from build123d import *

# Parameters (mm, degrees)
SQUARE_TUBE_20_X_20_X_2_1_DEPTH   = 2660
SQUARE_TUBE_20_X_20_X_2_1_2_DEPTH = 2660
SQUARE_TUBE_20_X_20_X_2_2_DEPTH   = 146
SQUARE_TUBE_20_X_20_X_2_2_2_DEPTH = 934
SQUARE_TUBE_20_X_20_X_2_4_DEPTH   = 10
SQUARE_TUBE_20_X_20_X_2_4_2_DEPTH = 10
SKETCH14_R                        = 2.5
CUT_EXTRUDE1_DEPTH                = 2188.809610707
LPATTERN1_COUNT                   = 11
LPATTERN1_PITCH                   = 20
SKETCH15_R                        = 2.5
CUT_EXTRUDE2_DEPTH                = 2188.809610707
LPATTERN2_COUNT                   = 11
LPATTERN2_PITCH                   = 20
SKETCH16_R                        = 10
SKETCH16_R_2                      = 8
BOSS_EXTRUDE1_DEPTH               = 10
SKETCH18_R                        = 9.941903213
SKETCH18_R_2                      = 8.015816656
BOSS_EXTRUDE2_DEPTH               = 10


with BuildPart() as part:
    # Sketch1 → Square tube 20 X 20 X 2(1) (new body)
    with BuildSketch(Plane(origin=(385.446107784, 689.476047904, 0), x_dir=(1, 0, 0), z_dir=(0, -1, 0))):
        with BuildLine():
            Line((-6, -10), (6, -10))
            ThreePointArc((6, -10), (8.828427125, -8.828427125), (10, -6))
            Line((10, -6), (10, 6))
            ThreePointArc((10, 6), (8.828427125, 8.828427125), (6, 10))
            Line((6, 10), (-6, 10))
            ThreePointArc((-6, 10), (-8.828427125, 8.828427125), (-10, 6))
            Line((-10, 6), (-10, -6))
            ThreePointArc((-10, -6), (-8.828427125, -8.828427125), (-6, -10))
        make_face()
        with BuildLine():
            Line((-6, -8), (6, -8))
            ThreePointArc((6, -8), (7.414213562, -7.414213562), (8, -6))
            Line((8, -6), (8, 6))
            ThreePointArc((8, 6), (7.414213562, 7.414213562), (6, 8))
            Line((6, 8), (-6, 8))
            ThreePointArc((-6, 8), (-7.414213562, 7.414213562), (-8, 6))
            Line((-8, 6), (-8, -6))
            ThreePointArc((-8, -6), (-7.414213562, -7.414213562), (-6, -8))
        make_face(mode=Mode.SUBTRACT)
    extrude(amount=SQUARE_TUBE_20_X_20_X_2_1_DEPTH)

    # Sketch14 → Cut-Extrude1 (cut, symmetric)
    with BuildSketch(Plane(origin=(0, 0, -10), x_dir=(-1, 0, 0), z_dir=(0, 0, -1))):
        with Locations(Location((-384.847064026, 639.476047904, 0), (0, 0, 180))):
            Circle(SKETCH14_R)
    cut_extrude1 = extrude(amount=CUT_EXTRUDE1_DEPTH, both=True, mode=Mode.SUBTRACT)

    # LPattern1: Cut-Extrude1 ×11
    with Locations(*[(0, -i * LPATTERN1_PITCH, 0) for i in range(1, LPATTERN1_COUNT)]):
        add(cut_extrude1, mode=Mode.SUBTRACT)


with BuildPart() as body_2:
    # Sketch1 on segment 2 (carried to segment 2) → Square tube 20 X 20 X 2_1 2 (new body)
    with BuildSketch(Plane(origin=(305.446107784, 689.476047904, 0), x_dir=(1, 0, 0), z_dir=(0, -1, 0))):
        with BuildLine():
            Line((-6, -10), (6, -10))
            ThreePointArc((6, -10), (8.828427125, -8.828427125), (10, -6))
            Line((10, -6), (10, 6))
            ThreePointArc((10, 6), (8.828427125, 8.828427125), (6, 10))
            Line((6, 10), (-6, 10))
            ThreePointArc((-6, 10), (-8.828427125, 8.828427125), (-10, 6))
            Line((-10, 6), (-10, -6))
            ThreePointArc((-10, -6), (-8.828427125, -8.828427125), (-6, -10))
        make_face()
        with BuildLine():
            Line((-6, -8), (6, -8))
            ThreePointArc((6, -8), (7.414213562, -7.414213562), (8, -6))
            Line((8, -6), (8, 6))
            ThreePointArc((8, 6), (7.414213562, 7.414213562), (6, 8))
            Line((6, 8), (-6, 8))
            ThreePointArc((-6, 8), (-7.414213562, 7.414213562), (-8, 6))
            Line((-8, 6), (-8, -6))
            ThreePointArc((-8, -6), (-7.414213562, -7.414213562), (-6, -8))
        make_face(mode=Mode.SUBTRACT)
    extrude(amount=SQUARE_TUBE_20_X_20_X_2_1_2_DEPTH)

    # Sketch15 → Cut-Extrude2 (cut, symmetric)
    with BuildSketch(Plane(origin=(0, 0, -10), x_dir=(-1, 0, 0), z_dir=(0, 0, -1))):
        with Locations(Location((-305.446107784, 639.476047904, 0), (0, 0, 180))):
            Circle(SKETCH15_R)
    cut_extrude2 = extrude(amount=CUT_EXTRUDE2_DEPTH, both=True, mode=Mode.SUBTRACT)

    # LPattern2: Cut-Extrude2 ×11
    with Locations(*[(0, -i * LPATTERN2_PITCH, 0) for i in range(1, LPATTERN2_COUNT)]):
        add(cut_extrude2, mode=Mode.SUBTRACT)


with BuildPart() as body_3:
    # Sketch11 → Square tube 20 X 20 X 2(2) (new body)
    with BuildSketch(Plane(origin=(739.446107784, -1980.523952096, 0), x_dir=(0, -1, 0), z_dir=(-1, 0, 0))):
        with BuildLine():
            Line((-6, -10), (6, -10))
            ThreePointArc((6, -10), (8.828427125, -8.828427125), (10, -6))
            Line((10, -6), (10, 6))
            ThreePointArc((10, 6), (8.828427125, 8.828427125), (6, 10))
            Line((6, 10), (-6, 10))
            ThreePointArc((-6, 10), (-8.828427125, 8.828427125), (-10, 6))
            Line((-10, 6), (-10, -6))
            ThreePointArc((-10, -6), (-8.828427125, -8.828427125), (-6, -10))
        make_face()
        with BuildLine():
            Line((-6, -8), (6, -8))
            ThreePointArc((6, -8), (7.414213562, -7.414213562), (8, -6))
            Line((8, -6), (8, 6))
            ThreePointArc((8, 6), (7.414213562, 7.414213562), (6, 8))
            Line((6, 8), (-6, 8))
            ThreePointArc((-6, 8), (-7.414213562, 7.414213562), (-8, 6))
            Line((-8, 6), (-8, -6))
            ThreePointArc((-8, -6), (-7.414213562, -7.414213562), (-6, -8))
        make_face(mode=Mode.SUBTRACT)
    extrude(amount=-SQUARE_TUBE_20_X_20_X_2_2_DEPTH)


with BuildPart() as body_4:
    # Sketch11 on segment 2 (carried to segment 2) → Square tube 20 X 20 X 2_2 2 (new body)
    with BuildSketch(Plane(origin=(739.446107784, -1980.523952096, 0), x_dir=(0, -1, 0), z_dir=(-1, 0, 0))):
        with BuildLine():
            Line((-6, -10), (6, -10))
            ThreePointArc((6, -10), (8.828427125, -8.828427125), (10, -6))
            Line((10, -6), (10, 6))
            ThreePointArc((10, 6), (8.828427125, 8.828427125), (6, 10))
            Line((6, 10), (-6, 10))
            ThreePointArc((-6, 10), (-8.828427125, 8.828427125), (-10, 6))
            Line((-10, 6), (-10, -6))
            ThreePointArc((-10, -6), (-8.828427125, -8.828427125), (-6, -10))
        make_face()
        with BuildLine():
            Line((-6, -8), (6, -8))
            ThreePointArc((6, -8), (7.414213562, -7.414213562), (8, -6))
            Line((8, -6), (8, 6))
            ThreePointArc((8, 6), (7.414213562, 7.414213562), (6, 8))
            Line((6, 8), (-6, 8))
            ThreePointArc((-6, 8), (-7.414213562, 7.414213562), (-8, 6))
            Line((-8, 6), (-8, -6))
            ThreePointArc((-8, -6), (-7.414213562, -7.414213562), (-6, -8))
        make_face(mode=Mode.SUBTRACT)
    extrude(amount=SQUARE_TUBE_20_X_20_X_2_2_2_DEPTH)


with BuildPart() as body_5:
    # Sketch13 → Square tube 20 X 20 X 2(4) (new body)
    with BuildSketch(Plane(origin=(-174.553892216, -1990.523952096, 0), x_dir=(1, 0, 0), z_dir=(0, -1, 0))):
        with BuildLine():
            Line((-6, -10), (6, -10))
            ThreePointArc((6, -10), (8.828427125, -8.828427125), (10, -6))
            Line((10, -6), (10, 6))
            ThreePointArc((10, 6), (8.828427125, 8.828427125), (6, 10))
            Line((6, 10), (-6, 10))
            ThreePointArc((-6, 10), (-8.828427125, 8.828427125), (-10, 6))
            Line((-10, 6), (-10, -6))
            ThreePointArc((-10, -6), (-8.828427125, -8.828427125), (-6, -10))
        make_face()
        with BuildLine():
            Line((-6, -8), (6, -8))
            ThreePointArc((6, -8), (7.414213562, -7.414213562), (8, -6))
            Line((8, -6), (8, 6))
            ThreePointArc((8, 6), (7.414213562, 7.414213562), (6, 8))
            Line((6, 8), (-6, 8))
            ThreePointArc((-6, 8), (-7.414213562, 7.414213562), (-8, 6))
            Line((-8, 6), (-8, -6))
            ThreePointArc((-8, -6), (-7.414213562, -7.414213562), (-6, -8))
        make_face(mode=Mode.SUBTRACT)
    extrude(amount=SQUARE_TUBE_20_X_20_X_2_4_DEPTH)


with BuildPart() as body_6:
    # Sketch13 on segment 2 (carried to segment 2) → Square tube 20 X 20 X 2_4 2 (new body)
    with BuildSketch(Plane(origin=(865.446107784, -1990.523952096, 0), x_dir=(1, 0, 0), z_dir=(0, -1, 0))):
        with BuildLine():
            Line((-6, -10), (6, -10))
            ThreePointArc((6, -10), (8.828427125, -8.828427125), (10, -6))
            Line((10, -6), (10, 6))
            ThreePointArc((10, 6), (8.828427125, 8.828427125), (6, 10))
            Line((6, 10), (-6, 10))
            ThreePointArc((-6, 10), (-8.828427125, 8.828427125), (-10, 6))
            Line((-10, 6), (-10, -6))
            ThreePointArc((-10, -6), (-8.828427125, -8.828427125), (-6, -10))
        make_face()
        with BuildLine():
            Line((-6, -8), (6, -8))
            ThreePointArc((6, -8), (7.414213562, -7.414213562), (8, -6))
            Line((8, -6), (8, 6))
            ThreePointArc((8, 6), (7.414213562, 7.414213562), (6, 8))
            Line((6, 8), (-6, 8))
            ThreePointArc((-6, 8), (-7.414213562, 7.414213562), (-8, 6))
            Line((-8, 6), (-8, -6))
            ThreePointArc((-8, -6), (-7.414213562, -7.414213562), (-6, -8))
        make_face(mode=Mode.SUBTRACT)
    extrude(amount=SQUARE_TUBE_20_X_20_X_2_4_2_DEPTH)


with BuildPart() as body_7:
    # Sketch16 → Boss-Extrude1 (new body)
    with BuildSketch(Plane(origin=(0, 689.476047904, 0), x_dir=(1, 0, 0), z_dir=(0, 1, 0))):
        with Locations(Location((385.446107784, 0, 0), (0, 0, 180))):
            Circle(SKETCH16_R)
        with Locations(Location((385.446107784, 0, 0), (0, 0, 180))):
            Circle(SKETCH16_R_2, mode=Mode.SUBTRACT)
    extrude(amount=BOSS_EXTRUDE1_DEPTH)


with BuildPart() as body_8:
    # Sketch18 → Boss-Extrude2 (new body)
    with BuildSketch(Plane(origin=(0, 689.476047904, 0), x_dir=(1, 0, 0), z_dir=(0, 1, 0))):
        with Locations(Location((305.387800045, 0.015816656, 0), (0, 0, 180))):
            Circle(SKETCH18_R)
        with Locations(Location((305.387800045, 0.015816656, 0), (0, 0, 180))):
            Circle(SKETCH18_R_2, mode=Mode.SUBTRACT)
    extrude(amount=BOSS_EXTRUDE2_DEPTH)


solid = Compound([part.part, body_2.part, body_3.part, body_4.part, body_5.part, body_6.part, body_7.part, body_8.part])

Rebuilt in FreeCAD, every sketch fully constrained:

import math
import FreeCAD as App
import Part
import Sketcher
from FreeCAD import Vector

doc = App.newDocument("Part")
params = doc.addObject("Spreadsheet::Sheet", "Params")
for row, (alias, value) in enumerate([
    ("sketch1_radius", "4 mm"),
    ("sketch1_radius2", "2 mm"),
    ("sketch1_width", "12 mm"),
    ("pad1_length", "2660 mm"),
    ("sketch2_diameter", "5 mm"),
    ("pocket1_length", "4377.619221 mm"),
    ("linearpattern_pitch", "20 mm"),
    ("sketch3_radius", "4 mm"),
    ("sketch3_radius2", "2 mm"),
    ("sketch3_width", "12 mm"),
    ("pad2_length", "2660 mm"),
    ("sketch4_diameter", "5 mm"),
    ("pocket2_length", "4377.619221 mm"),
    ("linearpattern2_pitch", "20 mm"),
    ("sketch5_radius", "4 mm"),
    ("sketch5_radius2", "2 mm"),
    ("sketch5_width", "12 mm"),
    ("pad3_length", "146 mm"),
    ("sketch6_radius", "4 mm"),
    ("sketch6_radius2", "2 mm"),
    ("sketch6_width", "12 mm"),
    ("pad4_length", "934 mm"),
    ("sketch7_radius", "4 mm"),
    ("sketch7_radius2", "2 mm"),
    ("sketch7_width", "12 mm"),
    ("pad5_length", "10 mm"),
    ("sketch8_radius", "4 mm"),
    ("sketch8_radius2", "2 mm"),
    ("sketch8_width", "12 mm"),
    ("pad6_length", "10 mm"),
    ("sketch9_diameter", "20 mm"),
    ("sketch9_diameter2", "16 mm"),
    ("pad7_length", "10 mm"),
    ("pad8_length", "10 mm"),
], start=1):
    params.set(f"A{row}", alias)
    params.set(f"B{row}", "=" + value)
    params.setAlias(f"B{row}", alias)

body = doc.addObject("PartDesign::Body", "Body")

# Sketch on XZ plane
sketch1 = doc.addObject("Sketcher::SketchObject", "Sketch")
body.addObject(sketch1)
sketch1.AttachmentSupport = (doc.XZ_Plane, [""])
sketch1.MapMode = "FlatFace"
sketch1.AttachmentOffset = App.Placement(Vector(0, 0, -689.476048), App.Rotation())
sketch1.addGeometry(Part.LineSegment(Vector(379.4, -10, 0), Vector(391.4, -10, 0)), False)
sketch1.addGeometry(Part.ArcOfCircle(Part.Circle(Vector(391.4, -6, 0), Vector(0, 0, 1), 4), math.radians(-90), math.radians(0)), False)
sketch1.addGeometry(Part.LineSegment(Vector(395.4, -6, 0), Vector(395.4, 6, 0)), False)
sketch1.addGeometry(Part.ArcOfCircle(Part.Circle(Vector(391.4, 6, 0), Vector(0, 0, 1), 4), math.radians(0), math.radians(90)), False)
sketch1.addGeometry(Part.LineSegment(Vector(391.4, 10, 0), Vector(379.4, 10, 0)), False)
sketch1.addGeometry(Part.ArcOfCircle(Part.Circle(Vector(379.4, 6, 0), Vector(0, 0, 1), 4), math.radians(90), math.radians(180)), False)
sketch1.addGeometry(Part.LineSegment(Vector(375.4, 6, 0), Vector(375.4, -6, 0)), False)
sketch1.addGeometry(Part.ArcOfCircle(Part.Circle(Vector(379.4, -6, 0), Vector(0, 0, 1), 4), math.radians(180), math.radians(270)), False)
sketch1.addGeometry(Part.LineSegment(Vector(391.4, -8, 0), Vector(379.4, -8, 0)), False)
sketch1.addGeometry(Part.ArcOfCircle(Part.Circle(Vector(379.4, -6, 0), Vector(0, 0, 1), 2), math.radians(-180), math.radians(-90)), False)
sketch1.addGeometry(Part.LineSegment(Vector(377.4, -6, 0), Vector(377.4, 6, 0)), False)
sketch1.addGeometry(Part.ArcOfCircle(Part.Circle(Vector(379.4, 6, 0), Vector(0, 0, 1), 2), math.radians(90), math.radians(180)), False)
sketch1.addGeometry(Part.LineSegment(Vector(379.4, 8, 0), Vector(391.4, 8, 0)), False)
sketch1.addGeometry(Part.ArcOfCircle(Part.Circle(Vector(391.4, 6, 0), Vector(0, 0, 1), 2), math.radians(0), math.radians(90)), False)
sketch1.addGeometry(Part.LineSegment(Vector(393.4, 6, 0), Vector(393.4, -6, 0)), False)
sketch1.addGeometry(Part.ArcOfCircle(Part.Circle(Vector(391.4, -6, 0), Vector(0, 0, 1), 2), math.radians(-90), math.radians(0)), False)
sketch1.addConstraint(Sketcher.Constraint("Tangent", 0, 2, 1, 1))
sketch1.addConstraint(Sketcher.Constraint("Tangent", 1, 2, 2, 1))
sketch1.addConstraint(Sketcher.Constraint("Tangent", 2, 2, 3, 1))
sketch1.addConstraint(Sketcher.Constraint("Tangent", 3, 2, 4, 1))
sketch1.addConstraint(Sketcher.Constraint("Tangent", 4, 2, 5, 1))
sketch1.addConstraint(Sketcher.Constraint("Tangent", 5, 2, 6, 1))
sketch1.addConstraint(Sketcher.Constraint("Tangent", 6, 2, 7, 1))
sketch1.addConstraint(Sketcher.Constraint("Tangent", 7, 2, 0, 1))
sketch1.addConstraint(Sketcher.Constraint("Tangent", 8, 2, 9, 2))
sketch1.addConstraint(Sketcher.Constraint("Tangent", 9, 1, 10, 1))
sketch1.addConstraint(Sketcher.Constraint("Tangent", 10, 2, 11, 2))
sketch1.addConstraint(Sketcher.Constraint("Tangent", 11, 1, 12, 1))
sketch1.addConstraint(Sketcher.Constraint("Tangent", 12, 2, 13, 2))
sketch1.addConstraint(Sketcher.Constraint("Tangent", 13, 1, 14, 1))
sketch1.addConstraint(Sketcher.Constraint("Tangent", 14, 2, 15, 2))
sketch1.addConstraint(Sketcher.Constraint("Tangent", 15, 1, 8, 1))
sketch1.addConstraint(Sketcher.Constraint("Horizontal", 0))
sketch1.addConstraint(Sketcher.Constraint("Vertical", 2))
sketch1.addConstraint(Sketcher.Constraint("Horizontal", 4))
sketch1.addConstraint(Sketcher.Constraint("Vertical", 6))
sketch1.addConstraint(Sketcher.Constraint("Horizontal", 8))
sketch1.addConstraint(Sketcher.Constraint("Vertical", 10))
sketch1.addConstraint(Sketcher.Constraint("Horizontal", 12))
sketch1.addConstraint(Sketcher.Constraint("Vertical", 14))
sketch1.addConstraint(Sketcher.Constraint("Coincident", 9, 3, 7, 3))
sketch1.addConstraint(Sketcher.Constraint("Coincident", 11, 3, 5, 3))
sketch1.addConstraint(Sketcher.Constraint("Coincident", 13, 3, 3, 3))
sketch1.addConstraint(Sketcher.Constraint("Equal", 1, 3))
sketch1.addConstraint(Sketcher.Constraint("Equal", 3, 5))
sketch1.addConstraint(Sketcher.Constraint("Equal", 5, 7))
sketch1.addConstraint(Sketcher.Constraint("Equal", 13, 15))
sketch1.addConstraint(Sketcher.Constraint("Equal", 12, 2))
sketch1.addConstraint(Sketcher.Constraint("Radius", 1, 4.0))
sketch1.addConstraint(Sketcher.Constraint("Radius", 9, 2.0))
sketch1.addConstraint(Sketcher.Constraint("DistanceX", 0, 1, 0, 2, 12.0))
sketch1.addConstraint(Sketcher.Constraint("DistanceY", 1, 3, -1, 1, 6.0))
sketch1.addConstraint(Sketcher.Constraint("DistanceX", -1, 1, 1, 3, 391.446108))
sketch1.setExpression("Constraints[32]", "Params.sketch1_radius")
sketch1.setExpression("Constraints[33]", "Params.sketch1_radius2")
sketch1.setExpression("Constraints[34]", "Params.sketch1_width")
pad1 = doc.addObject("PartDesign::Pad", "Pad")
body.addObject(pad1)
pad1.Profile = sketch1
pad1.setExpression("Length", "Params.pad1_length")

# Sketch on XY plane
sketch2 = doc.addObject("Sketcher::SketchObject", "Sketch001")
body.addObject(sketch2)
sketch2.AttachmentSupport = (doc.XY_Plane, [""])
sketch2.MapMode = "FlatFace"
sketch2.AttachmentOffset = App.Placement(Vector(0, 0, -10), App.Rotation())
sketch2.addGeometry(Part.Circle(Vector(384.8, 639.5, 0), Vector(0, 0, 1), 2.5), False)
sketch2.addConstraint(Sketcher.Constraint("Diameter", 0, 5.0))
sketch2.addConstraint(Sketcher.Constraint("DistanceX", -1, 1, 0, 3, 384.847064))
sketch2.addConstraint(Sketcher.Constraint("DistanceY", -1, 1, 0, 3, 639.476048))
sketch2.setExpression("Constraints[0]", "Params.sketch2_diameter")
pocket1 = doc.addObject("PartDesign::Pocket", "Pocket")
body.addObject(pocket1)
pocket1.Profile = sketch2
pocket1.setExpression("Length", "Params.pocket1_length")
pocket1.Midplane = True
doc.recompute()

linearpattern = doc.addObject("PartDesign::LinearPattern", "LinearPattern")
body.addObject(linearpattern)
linearpattern.Originals = [pocket1]
linearpattern.Direction = (doc.Y_Axis, [""])
linearpattern.Mode = "offset"
linearpattern.setExpression("Offset", "Params.linearpattern_pitch")
linearpattern.Occurrences = 11
linearpattern.Reversed = True
body.Tip = linearpattern
body2 = doc.addObject("PartDesign::Body", "Body001")

# Sketch on XZ plane
sketch3 = doc.addObject("Sketcher::SketchObject", "Sketch002")
body2.addObject(sketch3)
sketch3.AttachmentSupport = (doc.getObject("XZ_Plane001"), [""])
sketch3.MapMode = "FlatFace"
sketch3.AttachmentOffset = App.Placement(Vector(0, 0, -689.476048), App.Rotation())
sketch3.addGeometry(Part.LineSegment(Vector(299.4, -10, 0), Vector(311.4, -10, 0)), False)
sketch3.addGeometry(Part.ArcOfCircle(Part.Circle(Vector(311.4, -6, 0), Vector(0, 0, 1), 4), math.radians(-90), math.radians(0)), False)
sketch3.addGeometry(Part.LineSegment(Vector(315.4, -6, 0), Vector(315.4, 6, 0)), False)
sketch3.addGeometry(Part.ArcOfCircle(Part.Circle(Vector(311.4, 6, 0), Vector(0, 0, 1), 4), math.radians(0), math.radians(90)), False)
sketch3.addGeometry(Part.LineSegment(Vector(311.4, 10, 0), Vector(299.4, 10, 0)), False)
sketch3.addGeometry(Part.ArcOfCircle(Part.Circle(Vector(299.4, 6, 0), Vector(0, 0, 1), 4), math.radians(90), math.radians(180)), False)
sketch3.addGeometry(Part.LineSegment(Vector(295.4, 6, 0), Vector(295.4, -6, 0)), False)
sketch3.addGeometry(Part.ArcOfCircle(Part.Circle(Vector(299.4, -6, 0), Vector(0, 0, 1), 4), math.radians(180), math.radians(270)), False)
sketch3.addGeometry(Part.LineSegment(Vector(311.4, -8, 0), Vector(299.4, -8, 0)), False)
sketch3.addGeometry(Part.ArcOfCircle(Part.Circle(Vector(299.4, -6, 0), Vector(0, 0, 1), 2), math.radians(-180), math.radians(-90)), False)
sketch3.addGeometry(Part.LineSegment(Vector(297.4, -6, 0), Vector(297.4, 6, 0)), False)
sketch3.addGeometry(Part.ArcOfCircle(Part.Circle(Vector(299.4, 6, 0), Vector(0, 0, 1), 2), math.radians(90), math.radians(180)), False)
sketch3.addGeometry(Part.LineSegment(Vector(299.4, 8, 0), Vector(311.4, 8, 0)), False)
sketch3.addGeometry(Part.ArcOfCircle(Part.Circle(Vector(311.4, 6, 0), Vector(0, 0, 1), 2), math.radians(0), math.radians(90)), False)
sketch3.addGeometry(Part.LineSegment(Vector(313.4, 6, 0), Vector(313.4, -6, 0)), False)
sketch3.addGeometry(Part.ArcOfCircle(Part.Circle(Vector(311.4, -6, 0), Vector(0, 0, 1), 2), math.radians(-90), math.radians(0)), False)
sketch3.addConstraint(Sketcher.Constraint("Tangent", 0, 2, 1, 1))
sketch3.addConstraint(Sketcher.Constraint("Tangent", 1, 2, 2, 1))
sketch3.addConstraint(Sketcher.Constraint("Tangent", 2, 2, 3, 1))
sketch3.addConstraint(Sketcher.Constraint("Tangent", 3, 2, 4, 1))
sketch3.addConstraint(Sketcher.Constraint("Tangent", 4, 2, 5, 1))
sketch3.addConstraint(Sketcher.Constraint("Tangent", 5, 2, 6, 1))
sketch3.addConstraint(Sketcher.Constraint("Tangent", 6, 2, 7, 1))
sketch3.addConstraint(Sketcher.Constraint("Tangent", 7, 2, 0, 1))
sketch3.addConstraint(Sketcher.Constraint("Tangent", 8, 2, 9, 2))
sketch3.addConstraint(Sketcher.Constraint("Tangent", 9, 1, 10, 1))
sketch3.addConstraint(Sketcher.Constraint("Tangent", 10, 2, 11, 2))
sketch3.addConstraint(Sketcher.Constraint("Tangent", 11, 1, 12, 1))
sketch3.addConstraint(Sketcher.Constraint("Tangent", 12, 2, 13, 2))
sketch3.addConstraint(Sketcher.Constraint("Tangent", 13, 1, 14, 1))
sketch3.addConstraint(Sketcher.Constraint("Tangent", 14, 2, 15, 2))
sketch3.addConstraint(Sketcher.Constraint("Tangent", 15, 1, 8, 1))
sketch3.addConstraint(Sketcher.Constraint("Horizontal", 0))
sketch3.addConstraint(Sketcher.Constraint("Vertical", 2))
sketch3.addConstraint(Sketcher.Constraint("Horizontal", 4))
sketch3.addConstraint(Sketcher.Constraint("Vertical", 6))
sketch3.addConstraint(Sketcher.Constraint("Horizontal", 8))
sketch3.addConstraint(Sketcher.Constraint("Vertical", 10))
sketch3.addConstraint(Sketcher.Constraint("Horizontal", 12))
sketch3.addConstraint(Sketcher.Constraint("Vertical", 14))
sketch3.addConstraint(Sketcher.Constraint("Coincident", 9, 3, 7, 3))
sketch3.addConstraint(Sketcher.Constraint("Coincident", 11, 3, 5, 3))
sketch3.addConstraint(Sketcher.Constraint("Coincident", 13, 3, 3, 3))
sketch3.addConstraint(Sketcher.Constraint("Equal", 1, 3))
sketch3.addConstraint(Sketcher.Constraint("Equal", 3, 5))
sketch3.addConstraint(Sketcher.Constraint("Equal", 5, 7))
sketch3.addConstraint(Sketcher.Constraint("Equal", 13, 15))
sketch3.addConstraint(Sketcher.Constraint("Equal", 12, 2))
sketch3.addConstraint(Sketcher.Constraint("Radius", 1, 4.0))
sketch3.addConstraint(Sketcher.Constraint("Radius", 9, 2.0))
sketch3.addConstraint(Sketcher.Constraint("DistanceX", 0, 1, 0, 2, 12.0))
sketch3.addConstraint(Sketcher.Constraint("DistanceY", 1, 3, -1, 1, 6.0))
sketch3.addConstraint(Sketcher.Constraint("DistanceX", -1, 1, 1, 3, 311.446108))
sketch3.setExpression("Constraints[32]", "Params.sketch3_radius")
sketch3.setExpression("Constraints[33]", "Params.sketch3_radius2")
sketch3.setExpression("Constraints[34]", "Params.sketch3_width")
pad2 = doc.addObject("PartDesign::Pad", "Pad001")
body2.addObject(pad2)
pad2.Profile = sketch3
pad2.setExpression("Length", "Params.pad2_length")

# Sketch on XY plane
sketch4 = doc.addObject("Sketcher::SketchObject", "Sketch003")
body2.addObject(sketch4)
sketch4.AttachmentSupport = (doc.getObject("XY_Plane001"), [""])
sketch4.MapMode = "FlatFace"
sketch4.AttachmentOffset = App.Placement(Vector(0, 0, -10), App.Rotation())
sketch4.addGeometry(Part.Circle(Vector(305.4, 639.5, 0), Vector(0, 0, 1), 2.5), False)
sketch4.addConstraint(Sketcher.Constraint("Diameter", 0, 5.0))
sketch4.addConstraint(Sketcher.Constraint("DistanceX", -1, 1, 0, 3, 305.446108))
sketch4.addConstraint(Sketcher.Constraint("DistanceY", -1, 1, 0, 3, 639.476048))
sketch4.setExpression("Constraints[0]", "Params.sketch4_diameter")
pocket2 = doc.addObject("PartDesign::Pocket", "Pocket001")
body2.addObject(pocket2)
pocket2.Profile = sketch4
pocket2.setExpression("Length", "Params.pocket2_length")
pocket2.Midplane = True
doc.recompute()

linearpattern2 = doc.addObject("PartDesign::LinearPattern", "LinearPattern001")
body2.addObject(linearpattern2)
linearpattern2.Originals = [pocket2]
linearpattern2.Direction = (doc.getObject("Y_Axis001"), [""])
linearpattern2.Mode = "offset"
linearpattern2.setExpression("Offset", "Params.linearpattern2_pitch")
linearpattern2.Occurrences = 11
linearpattern2.Reversed = True
body2.Tip = linearpattern2
body3 = doc.addObject("PartDesign::Body", "Body002")

# Sketch on YZ plane
sketch5 = doc.addObject("Sketcher::SketchObject", "Sketch004")
body3.addObject(sketch5)
sketch5.AttachmentSupport = (doc.getObject("YZ_Plane002"), [""])
sketch5.MapMode = "FlatFace"
sketch5.AttachmentOffset = App.Placement(Vector(0, 0, 739.446108), App.Rotation())
sketch5.addGeometry(Part.LineSegment(Vector(-1974.5, -10, 0), Vector(-1986.5, -10, 0)), False)
sketch5.addGeometry(Part.ArcOfCircle(Part.Circle(Vector(-1986.5, -6, 0), Vector(0, 0, 1), 4), math.radians(180), math.radians(270)), False)
sketch5.addGeometry(Part.LineSegment(Vector(-1990.5, -6, 0), Vector(-1990.5, 6, 0)), False)
sketch5.addGeometry(Part.ArcOfCircle(Part.Circle(Vector(-1986.5, 6, 0), Vector(0, 0, 1), 4), math.radians(90), math.radians(180)), False)
sketch5.addGeometry(Part.LineSegment(Vector(-1986.5, 10, 0), Vector(-1974.5, 10, 0)), False)
sketch5.addGeometry(Part.ArcOfCircle(Part.Circle(Vector(-1974.5, 6, 0), Vector(0, 0, 1), 4), math.radians(0), math.radians(90)), False)
sketch5.addGeometry(Part.LineSegment(Vector(-1970.5, 6, 0), Vector(-1970.5, -6, 0)), False)
sketch5.addGeometry(Part.ArcOfCircle(Part.Circle(Vector(-1974.5, -6, 0), Vector(0, 0, 1), 4), math.radians(-90), math.radians(0)), False)
sketch5.addGeometry(Part.LineSegment(Vector(-1986.5, -8, 0), Vector(-1974.5, -8, 0)), False)
sketch5.addGeometry(Part.ArcOfCircle(Part.Circle(Vector(-1974.5, -6, 0), Vector(0, 0, 1), 2), math.radians(-90), math.radians(0)), False)
sketch5.addGeometry(Part.LineSegment(Vector(-1972.5, -6, 0), Vector(-1972.5, 6, 0)), False)
sketch5.addGeometry(Part.ArcOfCircle(Part.Circle(Vector(-1974.5, 6, 0), Vector(0, 0, 1), 2), math.radians(0), math.radians(90)), False)
sketch5.addGeometry(Part.LineSegment(Vector(-1974.5, 8, 0), Vector(-1986.5, 8, 0)), False)
sketch5.addGeometry(Part.ArcOfCircle(Part.Circle(Vector(-1986.5, 6, 0), Vector(0, 0, 1), 2), math.radians(90), math.radians(180)), False)
sketch5.addGeometry(Part.LineSegment(Vector(-1988.5, 6, 0), Vector(-1988.5, -6, 0)), False)
sketch5.addGeometry(Part.ArcOfCircle(Part.Circle(Vector(-1986.5, -6, 0), Vector(0, 0, 1), 2), math.radians(-180), math.radians(-90)), False)
sketch5.addConstraint(Sketcher.Constraint("Tangent", 0, 2, 1, 2))
sketch5.addConstraint(Sketcher.Constraint("Tangent", 1, 1, 2, 1))
sketch5.addConstraint(Sketcher.Constraint("Tangent", 2, 2, 3, 2))
sketch5.addConstraint(Sketcher.Constraint("Tangent", 3, 1, 4, 1))
sketch5.addConstraint(Sketcher.Constraint("Tangent", 4, 2, 5, 2))
sketch5.addConstraint(Sketcher.Constraint("Tangent", 5, 1, 6, 1))
sketch5.addConstraint(Sketcher.Constraint("Tangent", 6, 2, 7, 2))
sketch5.addConstraint(Sketcher.Constraint("Tangent", 7, 1, 0, 1))
sketch5.addConstraint(Sketcher.Constraint("Tangent", 8, 2, 9, 1))
sketch5.addConstraint(Sketcher.Constraint("Tangent", 9, 2, 10, 1))
sketch5.addConstraint(Sketcher.Constraint("Tangent", 10, 2, 11, 1))
sketch5.addConstraint(Sketcher.Constraint("Tangent", 11, 2, 12, 1))
sketch5.addConstraint(Sketcher.Constraint("Tangent", 12, 2, 13, 1))
sketch5.addConstraint(Sketcher.Constraint("Tangent", 13, 2, 14, 1))
sketch5.addConstraint(Sketcher.Constraint("Tangent", 14, 2, 15, 1))
sketch5.addConstraint(Sketcher.Constraint("Tangent", 15, 2, 8, 1))
sketch5.addConstraint(Sketcher.Constraint("Horizontal", 0))
sketch5.addConstraint(Sketcher.Constraint("Vertical", 2))
sketch5.addConstraint(Sketcher.Constraint("Horizontal", 4))
sketch5.addConstraint(Sketcher.Constraint("Vertical", 6))
sketch5.addConstraint(Sketcher.Constraint("Horizontal", 8))
sketch5.addConstraint(Sketcher.Constraint("Vertical", 10))
sketch5.addConstraint(Sketcher.Constraint("Horizontal", 12))
sketch5.addConstraint(Sketcher.Constraint("Vertical", 14))
sketch5.addConstraint(Sketcher.Constraint("Coincident", 9, 3, 7, 3))
sketch5.addConstraint(Sketcher.Constraint("Coincident", 11, 3, 5, 3))
sketch5.addConstraint(Sketcher.Constraint("Coincident", 13, 3, 3, 3))
sketch5.addConstraint(Sketcher.Constraint("Equal", 1, 3))
sketch5.addConstraint(Sketcher.Constraint("Equal", 3, 5))
sketch5.addConstraint(Sketcher.Constraint("Equal", 5, 7))
sketch5.addConstraint(Sketcher.Constraint("Equal", 13, 15))
sketch5.addConstraint(Sketcher.Constraint("Equal", 12, 2))
sketch5.addConstraint(Sketcher.Constraint("Radius", 1, 4.0))
sketch5.addConstraint(Sketcher.Constraint("Radius", 9, 2.0))
sketch5.addConstraint(Sketcher.Constraint("DistanceX", 0, 2, 0, 1, 12.0))
sketch5.addConstraint(Sketcher.Constraint("DistanceY", 1, 3, -1, 1, 6.0))
sketch5.addConstraint(Sketcher.Constraint("DistanceX", 1, 3, -1, 1, 1986.523952))
sketch5.setExpression("Constraints[32]", "Params.sketch5_radius")
sketch5.setExpression("Constraints[33]", "Params.sketch5_radius2")
sketch5.setExpression("Constraints[34]", "Params.sketch5_width")
pad3 = doc.addObject("PartDesign::Pad", "Pad002")
body3.addObject(pad3)
pad3.Profile = sketch5
pad3.setExpression("Length", "Params.pad3_length")
body4 = doc.addObject("PartDesign::Body", "Body003")

# Sketch on YZ plane
sketch6 = doc.addObject("Sketcher::SketchObject", "Sketch005")
body4.addObject(sketch6)
sketch6.AttachmentSupport = (doc.getObject("YZ_Plane003"), [""])
sketch6.MapMode = "FlatFace"
sketch6.AttachmentOffset = App.Placement(Vector(0, 0, 739.446108), App.Rotation())
sketch6.addGeometry(Part.LineSegment(Vector(-1974.5, -10, 0), Vector(-1986.5, -10, 0)), False)
sketch6.addGeometry(Part.ArcOfCircle(Part.Circle(Vector(-1986.5, -6, 0), Vector(0, 0, 1), 4), math.radians(180), math.radians(270)), False)
sketch6.addGeometry(Part.LineSegment(Vector(-1990.5, -6, 0), Vector(-1990.5, 6, 0)), False)
sketch6.addGeometry(Part.ArcOfCircle(Part.Circle(Vector(-1986.5, 6, 0), Vector(0, 0, 1), 4), math.radians(90), math.radians(180)), False)
sketch6.addGeometry(Part.LineSegment(Vector(-1986.5, 10, 0), Vector(-1974.5, 10, 0)), False)
sketch6.addGeometry(Part.ArcOfCircle(Part.Circle(Vector(-1974.5, 6, 0), Vector(0, 0, 1), 4), math.radians(0), math.radians(90)), False)
sketch6.addGeometry(Part.LineSegment(Vector(-1970.5, 6, 0), Vector(-1970.5, -6, 0)), False)
sketch6.addGeometry(Part.ArcOfCircle(Part.Circle(Vector(-1974.5, -6, 0), Vector(0, 0, 1), 4), math.radians(-90), math.radians(0)), False)
sketch6.addGeometry(Part.LineSegment(Vector(-1986.5, -8, 0), Vector(-1974.5, -8, 0)), False)
sketch6.addGeometry(Part.ArcOfCircle(Part.Circle(Vector(-1974.5, -6, 0), Vector(0, 0, 1), 2), math.radians(-90), math.radians(0)), False)
sketch6.addGeometry(Part.LineSegment(Vector(-1972.5, -6, 0), Vector(-1972.5, 6, 0)), False)
sketch6.addGeometry(Part.ArcOfCircle(Part.Circle(Vector(-1974.5, 6, 0), Vector(0, 0, 1), 2), math.radians(0), math.radians(90)), False)
sketch6.addGeometry(Part.LineSegment(Vector(-1974.5, 8, 0), Vector(-1986.5, 8, 0)), False)
sketch6.addGeometry(Part.ArcOfCircle(Part.Circle(Vector(-1986.5, 6, 0), Vector(0, 0, 1), 2), math.radians(90), math.radians(180)), False)
sketch6.addGeometry(Part.LineSegment(Vector(-1988.5, 6, 0), Vector(-1988.5, -6, 0)), False)
sketch6.addGeometry(Part.ArcOfCircle(Part.Circle(Vector(-1986.5, -6, 0), Vector(0, 0, 1), 2), math.radians(-180), math.radians(-90)), False)
sketch6.addConstraint(Sketcher.Constraint("Tangent", 0, 2, 1, 2))
sketch6.addConstraint(Sketcher.Constraint("Tangent", 1, 1, 2, 1))
sketch6.addConstraint(Sketcher.Constraint("Tangent", 2, 2, 3, 2))
sketch6.addConstraint(Sketcher.Constraint("Tangent", 3, 1, 4, 1))
sketch6.addConstraint(Sketcher.Constraint("Tangent", 4, 2, 5, 2))
sketch6.addConstraint(Sketcher.Constraint("Tangent", 5, 1, 6, 1))
sketch6.addConstraint(Sketcher.Constraint("Tangent", 6, 2, 7, 2))
sketch6.addConstraint(Sketcher.Constraint("Tangent", 7, 1, 0, 1))
sketch6.addConstraint(Sketcher.Constraint("Tangent", 8, 2, 9, 1))
sketch6.addConstraint(Sketcher.Constraint("Tangent", 9, 2, 10, 1))
sketch6.addConstraint(Sketcher.Constraint("Tangent", 10, 2, 11, 1))
sketch6.addConstraint(Sketcher.Constraint("Tangent", 11, 2, 12, 1))
sketch6.addConstraint(Sketcher.Constraint("Tangent", 12, 2, 13, 1))
sketch6.addConstraint(Sketcher.Constraint("Tangent", 13, 2, 14, 1))
sketch6.addConstraint(Sketcher.Constraint("Tangent", 14, 2, 15, 1))
sketch6.addConstraint(Sketcher.Constraint("Tangent", 15, 2, 8, 1))
sketch6.addConstraint(Sketcher.Constraint("Horizontal", 0))
sketch6.addConstraint(Sketcher.Constraint("Vertical", 2))
sketch6.addConstraint(Sketcher.Constraint("Horizontal", 4))
sketch6.addConstraint(Sketcher.Constraint("Vertical", 6))
sketch6.addConstraint(Sketcher.Constraint("Horizontal", 8))
sketch6.addConstraint(Sketcher.Constraint("Vertical", 10))
sketch6.addConstraint(Sketcher.Constraint("Horizontal", 12))
sketch6.addConstraint(Sketcher.Constraint("Vertical", 14))
sketch6.addConstraint(Sketcher.Constraint("Coincident", 9, 3, 7, 3))
sketch6.addConstraint(Sketcher.Constraint("Coincident", 11, 3, 5, 3))
sketch6.addConstraint(Sketcher.Constraint("Coincident", 13, 3, 3, 3))
sketch6.addConstraint(Sketcher.Constraint("Equal", 1, 3))
sketch6.addConstraint(Sketcher.Constraint("Equal", 3, 5))
sketch6.addConstraint(Sketcher.Constraint("Equal", 5, 7))
sketch6.addConstraint(Sketcher.Constraint("Equal", 13, 15))
sketch6.addConstraint(Sketcher.Constraint("Equal", 12, 2))
sketch6.addConstraint(Sketcher.Constraint("Radius", 1, 4.0))
sketch6.addConstraint(Sketcher.Constraint("Radius", 9, 2.0))
sketch6.addConstraint(Sketcher.Constraint("DistanceX", 0, 2, 0, 1, 12.0))
sketch6.addConstraint(Sketcher.Constraint("DistanceY", 1, 3, -1, 1, 6.0))
sketch6.addConstraint(Sketcher.Constraint("DistanceX", 1, 3, -1, 1, 1986.523952))
sketch6.setExpression("Constraints[32]", "Params.sketch6_radius")
sketch6.setExpression("Constraints[33]", "Params.sketch6_radius2")
sketch6.setExpression("Constraints[34]", "Params.sketch6_width")
pad4 = doc.addObject("PartDesign::Pad", "Pad003")
body4.addObject(pad4)
pad4.Profile = sketch6
pad4.setExpression("Length", "Params.pad4_length")
pad4.Reversed = True
body5 = doc.addObject("PartDesign::Body", "Body004")

# Sketch on XZ plane
sketch7 = doc.addObject("Sketcher::SketchObject", "Sketch006")
body5.addObject(sketch7)
sketch7.AttachmentSupport = (doc.getObject("XZ_Plane004"), [""])
sketch7.MapMode = "FlatFace"
sketch7.AttachmentOffset = App.Placement(Vector(0, 0, 1990.523952), App.Rotation())
sketch7.addGeometry(Part.LineSegment(Vector(-180.6, -10, 0), Vector(-168.6, -10, 0)), False)
sketch7.addGeometry(Part.ArcOfCircle(Part.Circle(Vector(-168.6, -6, 0), Vector(0, 0, 1), 4), math.radians(-90), math.radians(0)), False)
sketch7.addGeometry(Part.LineSegment(Vector(-164.6, -6, 0), Vector(-164.6, 6, 0)), False)
sketch7.addGeometry(Part.ArcOfCircle(Part.Circle(Vector(-168.6, 6, 0), Vector(0, 0, 1), 4), math.radians(0), math.radians(90)), False)
sketch7.addGeometry(Part.LineSegment(Vector(-168.6, 10, 0), Vector(-180.6, 10, 0)), False)
sketch7.addGeometry(Part.ArcOfCircle(Part.Circle(Vector(-180.6, 6, 0), Vector(0, 0, 1), 4), math.radians(90), math.radians(180)), False)
sketch7.addGeometry(Part.LineSegment(Vector(-184.6, 6, 0), Vector(-184.6, -6, 0)), False)
sketch7.addGeometry(Part.ArcOfCircle(Part.Circle(Vector(-180.6, -6, 0), Vector(0, 0, 1), 4), math.radians(180), math.radians(270)), False)
sketch7.addGeometry(Part.LineSegment(Vector(-168.6, -8, 0), Vector(-180.6, -8, 0)), False)
sketch7.addGeometry(Part.ArcOfCircle(Part.Circle(Vector(-180.6, -6, 0), Vector(0, 0, 1), 2), math.radians(-180), math.radians(-90)), False)
sketch7.addGeometry(Part.LineSegment(Vector(-182.6, -6, 0), Vector(-182.6, 6, 0)), False)
sketch7.addGeometry(Part.ArcOfCircle(Part.Circle(Vector(-180.6, 6, 0), Vector(0, 0, 1), 2), math.radians(90), math.radians(180)), False)
sketch7.addGeometry(Part.LineSegment(Vector(-180.6, 8, 0), Vector(-168.6, 8, 0)), False)
sketch7.addGeometry(Part.ArcOfCircle(Part.Circle(Vector(-168.6, 6, 0), Vector(0, 0, 1), 2), math.radians(0), math.radians(90)), False)
sketch7.addGeometry(Part.LineSegment(Vector(-166.6, 6, 0), Vector(-166.6, -6, 0)), False)
sketch7.addGeometry(Part.ArcOfCircle(Part.Circle(Vector(-168.6, -6, 0), Vector(0, 0, 1), 2), math.radians(-90), math.radians(0)), False)
sketch7.addConstraint(Sketcher.Constraint("Tangent", 0, 2, 1, 1))
sketch7.addConstraint(Sketcher.Constraint("Tangent", 1, 2, 2, 1))
sketch7.addConstraint(Sketcher.Constraint("Tangent", 2, 2, 3, 1))
sketch7.addConstraint(Sketcher.Constraint("Tangent", 3, 2, 4, 1))
sketch7.addConstraint(Sketcher.Constraint("Tangent", 4, 2, 5, 1))
sketch7.addConstraint(Sketcher.Constraint("Tangent", 5, 2, 6, 1))
sketch7.addConstraint(Sketcher.Constraint("Tangent", 6, 2, 7, 1))
sketch7.addConstraint(Sketcher.Constraint("Tangent", 7, 2, 0, 1))
sketch7.addConstraint(Sketcher.Constraint("Tangent", 8, 2, 9, 2))
sketch7.addConstraint(Sketcher.Constraint("Tangent", 9, 1, 10, 1))
sketch7.addConstraint(Sketcher.Constraint("Tangent", 10, 2, 11, 2))
sketch7.addConstraint(Sketcher.Constraint("Tangent", 11, 1, 12, 1))
sketch7.addConstraint(Sketcher.Constraint("Tangent", 12, 2, 13, 2))
sketch7.addConstraint(Sketcher.Constraint("Tangent", 13, 1, 14, 1))
sketch7.addConstraint(Sketcher.Constraint("Tangent", 14, 2, 15, 2))
sketch7.addConstraint(Sketcher.Constraint("Tangent", 15, 1, 8, 1))
sketch7.addConstraint(Sketcher.Constraint("Horizontal", 0))
sketch7.addConstraint(Sketcher.Constraint("Vertical", 2))
sketch7.addConstraint(Sketcher.Constraint("Horizontal", 4))
sketch7.addConstraint(Sketcher.Constraint("Vertical", 6))
sketch7.addConstraint(Sketcher.Constraint("Horizontal", 8))
sketch7.addConstraint(Sketcher.Constraint("Vertical", 10))
sketch7.addConstraint(Sketcher.Constraint("Horizontal", 12))
sketch7.addConstraint(Sketcher.Constraint("Vertical", 14))
sketch7.addConstraint(Sketcher.Constraint("Coincident", 9, 3, 7, 3))
sketch7.addConstraint(Sketcher.Constraint("Coincident", 11, 3, 5, 3))
sketch7.addConstraint(Sketcher.Constraint("Coincident", 13, 3, 3, 3))
sketch7.addConstraint(Sketcher.Constraint("Equal", 1, 3))
sketch7.addConstraint(Sketcher.Constraint("Equal", 3, 5))
sketch7.addConstraint(Sketcher.Constraint("Equal", 5, 7))
sketch7.addConstraint(Sketcher.Constraint("Equal", 13, 15))
sketch7.addConstraint(Sketcher.Constraint("Equal", 12, 2))
sketch7.addConstraint(Sketcher.Constraint("Radius", 1, 4.0))
sketch7.addConstraint(Sketcher.Constraint("Radius", 9, 2.0))
sketch7.addConstraint(Sketcher.Constraint("DistanceX", 0, 1, 0, 2, 12.0))
sketch7.addConstraint(Sketcher.Constraint("DistanceY", 1, 3, -1, 1, 6.0))
sketch7.addConstraint(Sketcher.Constraint("DistanceX", 1, 3, -1, 1, 168.553892))
sketch7.setExpression("Constraints[32]", "Params.sketch7_radius")
sketch7.setExpression("Constraints[33]", "Params.sketch7_radius2")
sketch7.setExpression("Constraints[34]", "Params.sketch7_width")
pad5 = doc.addObject("PartDesign::Pad", "Pad004")
body5.addObject(pad5)
pad5.Profile = sketch7
pad5.setExpression("Length", "Params.pad5_length")
body6 = doc.addObject("PartDesign::Body", "Body005")

# Sketch on XZ plane
sketch8 = doc.addObject("Sketcher::SketchObject", "Sketch007")
body6.addObject(sketch8)
sketch8.AttachmentSupport = (doc.getObject("XZ_Plane005"), [""])
sketch8.MapMode = "FlatFace"
sketch8.AttachmentOffset = App.Placement(Vector(0, 0, 1990.523952), App.Rotation())
sketch8.addGeometry(Part.LineSegment(Vector(859.4, -10, 0), Vector(871.4, -10, 0)), False)
sketch8.addGeometry(Part.ArcOfCircle(Part.Circle(Vector(871.4, -6, 0), Vector(0, 0, 1), 4), math.radians(-90), math.radians(0)), False)
sketch8.addGeometry(Part.LineSegment(Vector(875.4, -6, 0), Vector(875.4, 6, 0)), False)
sketch8.addGeometry(Part.ArcOfCircle(Part.Circle(Vector(871.4, 6, 0), Vector(0, 0, 1), 4), math.radians(0), math.radians(90)), False)
sketch8.addGeometry(Part.LineSegment(Vector(871.4, 10, 0), Vector(859.4, 10, 0)), False)
sketch8.addGeometry(Part.ArcOfCircle(Part.Circle(Vector(859.4, 6, 0), Vector(0, 0, 1), 4), math.radians(90), math.radians(180)), False)
sketch8.addGeometry(Part.LineSegment(Vector(855.4, 6, 0), Vector(855.4, -6, 0)), False)
sketch8.addGeometry(Part.ArcOfCircle(Part.Circle(Vector(859.4, -6, 0), Vector(0, 0, 1), 4), math.radians(180), math.radians(270)), False)
sketch8.addGeometry(Part.LineSegment(Vector(871.4, -8, 0), Vector(859.4, -8, 0)), False)
sketch8.addGeometry(Part.ArcOfCircle(Part.Circle(Vector(859.4, -6, 0), Vector(0, 0, 1), 2), math.radians(-180), math.radians(-90)), False)
sketch8.addGeometry(Part.LineSegment(Vector(857.4, -6, 0), Vector(857.4, 6, 0)), False)
sketch8.addGeometry(Part.ArcOfCircle(Part.Circle(Vector(859.4, 6, 0), Vector(0, 0, 1), 2), math.radians(90), math.radians(180)), False)
sketch8.addGeometry(Part.LineSegment(Vector(859.4, 8, 0), Vector(871.4, 8, 0)), False)
sketch8.addGeometry(Part.ArcOfCircle(Part.Circle(Vector(871.4, 6, 0), Vector(0, 0, 1), 2), math.radians(0), math.radians(90)), False)
sketch8.addGeometry(Part.LineSegment(Vector(873.4, 6, 0), Vector(873.4, -6, 0)), False)
sketch8.addGeometry(Part.ArcOfCircle(Part.Circle(Vector(871.4, -6, 0), Vector(0, 0, 1), 2), math.radians(-90), math.radians(0)), False)
sketch8.addConstraint(Sketcher.Constraint("Tangent", 0, 2, 1, 1))
sketch8.addConstraint(Sketcher.Constraint("Tangent", 1, 2, 2, 1))
sketch8.addConstraint(Sketcher.Constraint("Tangent", 2, 2, 3, 1))
sketch8.addConstraint(Sketcher.Constraint("Tangent", 3, 2, 4, 1))
sketch8.addConstraint(Sketcher.Constraint("Tangent", 4, 2, 5, 1))
sketch8.addConstraint(Sketcher.Constraint("Tangent", 5, 2, 6, 1))
sketch8.addConstraint(Sketcher.Constraint("Tangent", 6, 2, 7, 1))
sketch8.addConstraint(Sketcher.Constraint("Tangent", 7, 2, 0, 1))
sketch8.addConstraint(Sketcher.Constraint("Tangent", 8, 2, 9, 2))
sketch8.addConstraint(Sketcher.Constraint("Tangent", 9, 1, 10, 1))
sketch8.addConstraint(Sketcher.Constraint("Tangent", 10, 2, 11, 2))
sketch8.addConstraint(Sketcher.Constraint("Tangent", 11, 1, 12, 1))
sketch8.addConstraint(Sketcher.Constraint("Tangent", 12, 2, 13, 2))
sketch8.addConstraint(Sketcher.Constraint("Tangent", 13, 1, 14, 1))
sketch8.addConstraint(Sketcher.Constraint("Tangent", 14, 2, 15, 2))
sketch8.addConstraint(Sketcher.Constraint("Tangent", 15, 1, 8, 1))
sketch8.addConstraint(Sketcher.Constraint("Horizontal", 0))
sketch8.addConstraint(Sketcher.Constraint("Vertical", 2))
sketch8.addConstraint(Sketcher.Constraint("Horizontal", 4))
sketch8.addConstraint(Sketcher.Constraint("Vertical", 6))
sketch8.addConstraint(Sketcher.Constraint("Horizontal", 8))
sketch8.addConstraint(Sketcher.Constraint("Vertical", 10))
sketch8.addConstraint(Sketcher.Constraint("Horizontal", 12))
sketch8.addConstraint(Sketcher.Constraint("Vertical", 14))
sketch8.addConstraint(Sketcher.Constraint("Coincident", 9, 3, 7, 3))
sketch8.addConstraint(Sketcher.Constraint("Coincident", 11, 3, 5, 3))
sketch8.addConstraint(Sketcher.Constraint("Coincident", 13, 3, 3, 3))
sketch8.addConstraint(Sketcher.Constraint("Equal", 1, 3))
sketch8.addConstraint(Sketcher.Constraint("Equal", 3, 5))
sketch8.addConstraint(Sketcher.Constraint("Equal", 5, 7))
sketch8.addConstraint(Sketcher.Constraint("Equal", 13, 15))
sketch8.addConstraint(Sketcher.Constraint("Equal", 12, 2))
sketch8.addConstraint(Sketcher.Constraint("Radius", 1, 4.0))
sketch8.addConstraint(Sketcher.Constraint("Radius", 9, 2.0))
sketch8.addConstraint(Sketcher.Constraint("DistanceX", 0, 1, 0, 2, 12.0))
sketch8.addConstraint(Sketcher.Constraint("DistanceY", 1, 3, -1, 1, 6.0))
sketch8.addConstraint(Sketcher.Constraint("DistanceX", -1, 1, 1, 3, 871.446108))
sketch8.setExpression("Constraints[32]", "Params.sketch8_radius")
sketch8.setExpression("Constraints[33]", "Params.sketch8_radius2")
sketch8.setExpression("Constraints[34]", "Params.sketch8_width")
pad6 = doc.addObject("PartDesign::Pad", "Pad005")
body6.addObject(pad6)
pad6.Profile = sketch8
pad6.setExpression("Length", "Params.pad6_length")
body7 = doc.addObject("PartDesign::Body", "Body006")

# Sketch on XZ plane
sketch9 = doc.addObject("Sketcher::SketchObject", "Sketch008")
body7.addObject(sketch9)
sketch9.AttachmentSupport = (doc.getObject("XZ_Plane006"), [""])
sketch9.MapMode = "FlatFace"
sketch9.AttachmentOffset = App.Placement(Vector(0, 0, -689.476048), App.Rotation())
sketch9.addGeometry(Part.Circle(Vector(385, 0, 0), Vector(0, 0, 1), 10), False)
sketch9.addGeometry(Part.Circle(Vector(385, 0, 0), Vector(0, 0, 1), 8), False)
sketch9.addConstraint(Sketcher.Constraint("Coincident", 1, 3, 0, 3))
sketch9.addConstraint(Sketcher.Constraint("PointOnObject", 0, 3, -1))
sketch9.addConstraint(Sketcher.Constraint("Diameter", 0, 20.0))
sketch9.addConstraint(Sketcher.Constraint("Diameter", 1, 16.0))
sketch9.addConstraint(Sketcher.Constraint("DistanceX", -1, 1, 0, 3, 385.446108))
sketch9.setExpression("Constraints[2]", "Params.sketch9_diameter")
sketch9.setExpression("Constraints[3]", "Params.sketch9_diameter2")
pad7 = doc.addObject("PartDesign::Pad", "Pad006")
body7.addObject(pad7)
pad7.Profile = sketch9
pad7.setExpression("Length", "Params.pad7_length")
pad7.Reversed = True
body8 = doc.addObject("PartDesign::Body", "Body007")

# Sketch on XZ plane
sketch10 = doc.addObject("Sketcher::SketchObject", "Sketch009")
body8.addObject(sketch10)
sketch10.AttachmentSupport = (doc.getObject("XZ_Plane007"), [""])
sketch10.MapMode = "FlatFace"
sketch10.AttachmentOffset = App.Placement(Vector(0, 0, -689.476048), App.Rotation())
sketch10.addGeometry(Part.Circle(Vector(305, 0, 0), Vector(0, 0, 1), 10), False)
sketch10.addGeometry(Part.Circle(Vector(305, 0, 0), Vector(0, 0, 1), 8), False)
sketch10.addConstraint(Sketcher.Constraint("Coincident", 1, 3, 0, 3))
sketch10.addConstraint(Sketcher.Constraint("Diameter", 0, 19.883806))
sketch10.addConstraint(Sketcher.Constraint("Diameter", 1, 16.031633))
sketch10.addConstraint(Sketcher.Constraint("DistanceX", -1, 1, 0, 3, 305.3878))
sketch10.addConstraint(Sketcher.Constraint("DistanceY", 0, 3, -1, 1, 0.015817))
pad8 = doc.addObject("PartDesign::Pad", "Pad007")
body8.addObject(pad8)
pad8.Profile = sketch10
pad8.setExpression("Length", "Params.pad8_length")
pad8.Reversed = True

doc.recompute()
